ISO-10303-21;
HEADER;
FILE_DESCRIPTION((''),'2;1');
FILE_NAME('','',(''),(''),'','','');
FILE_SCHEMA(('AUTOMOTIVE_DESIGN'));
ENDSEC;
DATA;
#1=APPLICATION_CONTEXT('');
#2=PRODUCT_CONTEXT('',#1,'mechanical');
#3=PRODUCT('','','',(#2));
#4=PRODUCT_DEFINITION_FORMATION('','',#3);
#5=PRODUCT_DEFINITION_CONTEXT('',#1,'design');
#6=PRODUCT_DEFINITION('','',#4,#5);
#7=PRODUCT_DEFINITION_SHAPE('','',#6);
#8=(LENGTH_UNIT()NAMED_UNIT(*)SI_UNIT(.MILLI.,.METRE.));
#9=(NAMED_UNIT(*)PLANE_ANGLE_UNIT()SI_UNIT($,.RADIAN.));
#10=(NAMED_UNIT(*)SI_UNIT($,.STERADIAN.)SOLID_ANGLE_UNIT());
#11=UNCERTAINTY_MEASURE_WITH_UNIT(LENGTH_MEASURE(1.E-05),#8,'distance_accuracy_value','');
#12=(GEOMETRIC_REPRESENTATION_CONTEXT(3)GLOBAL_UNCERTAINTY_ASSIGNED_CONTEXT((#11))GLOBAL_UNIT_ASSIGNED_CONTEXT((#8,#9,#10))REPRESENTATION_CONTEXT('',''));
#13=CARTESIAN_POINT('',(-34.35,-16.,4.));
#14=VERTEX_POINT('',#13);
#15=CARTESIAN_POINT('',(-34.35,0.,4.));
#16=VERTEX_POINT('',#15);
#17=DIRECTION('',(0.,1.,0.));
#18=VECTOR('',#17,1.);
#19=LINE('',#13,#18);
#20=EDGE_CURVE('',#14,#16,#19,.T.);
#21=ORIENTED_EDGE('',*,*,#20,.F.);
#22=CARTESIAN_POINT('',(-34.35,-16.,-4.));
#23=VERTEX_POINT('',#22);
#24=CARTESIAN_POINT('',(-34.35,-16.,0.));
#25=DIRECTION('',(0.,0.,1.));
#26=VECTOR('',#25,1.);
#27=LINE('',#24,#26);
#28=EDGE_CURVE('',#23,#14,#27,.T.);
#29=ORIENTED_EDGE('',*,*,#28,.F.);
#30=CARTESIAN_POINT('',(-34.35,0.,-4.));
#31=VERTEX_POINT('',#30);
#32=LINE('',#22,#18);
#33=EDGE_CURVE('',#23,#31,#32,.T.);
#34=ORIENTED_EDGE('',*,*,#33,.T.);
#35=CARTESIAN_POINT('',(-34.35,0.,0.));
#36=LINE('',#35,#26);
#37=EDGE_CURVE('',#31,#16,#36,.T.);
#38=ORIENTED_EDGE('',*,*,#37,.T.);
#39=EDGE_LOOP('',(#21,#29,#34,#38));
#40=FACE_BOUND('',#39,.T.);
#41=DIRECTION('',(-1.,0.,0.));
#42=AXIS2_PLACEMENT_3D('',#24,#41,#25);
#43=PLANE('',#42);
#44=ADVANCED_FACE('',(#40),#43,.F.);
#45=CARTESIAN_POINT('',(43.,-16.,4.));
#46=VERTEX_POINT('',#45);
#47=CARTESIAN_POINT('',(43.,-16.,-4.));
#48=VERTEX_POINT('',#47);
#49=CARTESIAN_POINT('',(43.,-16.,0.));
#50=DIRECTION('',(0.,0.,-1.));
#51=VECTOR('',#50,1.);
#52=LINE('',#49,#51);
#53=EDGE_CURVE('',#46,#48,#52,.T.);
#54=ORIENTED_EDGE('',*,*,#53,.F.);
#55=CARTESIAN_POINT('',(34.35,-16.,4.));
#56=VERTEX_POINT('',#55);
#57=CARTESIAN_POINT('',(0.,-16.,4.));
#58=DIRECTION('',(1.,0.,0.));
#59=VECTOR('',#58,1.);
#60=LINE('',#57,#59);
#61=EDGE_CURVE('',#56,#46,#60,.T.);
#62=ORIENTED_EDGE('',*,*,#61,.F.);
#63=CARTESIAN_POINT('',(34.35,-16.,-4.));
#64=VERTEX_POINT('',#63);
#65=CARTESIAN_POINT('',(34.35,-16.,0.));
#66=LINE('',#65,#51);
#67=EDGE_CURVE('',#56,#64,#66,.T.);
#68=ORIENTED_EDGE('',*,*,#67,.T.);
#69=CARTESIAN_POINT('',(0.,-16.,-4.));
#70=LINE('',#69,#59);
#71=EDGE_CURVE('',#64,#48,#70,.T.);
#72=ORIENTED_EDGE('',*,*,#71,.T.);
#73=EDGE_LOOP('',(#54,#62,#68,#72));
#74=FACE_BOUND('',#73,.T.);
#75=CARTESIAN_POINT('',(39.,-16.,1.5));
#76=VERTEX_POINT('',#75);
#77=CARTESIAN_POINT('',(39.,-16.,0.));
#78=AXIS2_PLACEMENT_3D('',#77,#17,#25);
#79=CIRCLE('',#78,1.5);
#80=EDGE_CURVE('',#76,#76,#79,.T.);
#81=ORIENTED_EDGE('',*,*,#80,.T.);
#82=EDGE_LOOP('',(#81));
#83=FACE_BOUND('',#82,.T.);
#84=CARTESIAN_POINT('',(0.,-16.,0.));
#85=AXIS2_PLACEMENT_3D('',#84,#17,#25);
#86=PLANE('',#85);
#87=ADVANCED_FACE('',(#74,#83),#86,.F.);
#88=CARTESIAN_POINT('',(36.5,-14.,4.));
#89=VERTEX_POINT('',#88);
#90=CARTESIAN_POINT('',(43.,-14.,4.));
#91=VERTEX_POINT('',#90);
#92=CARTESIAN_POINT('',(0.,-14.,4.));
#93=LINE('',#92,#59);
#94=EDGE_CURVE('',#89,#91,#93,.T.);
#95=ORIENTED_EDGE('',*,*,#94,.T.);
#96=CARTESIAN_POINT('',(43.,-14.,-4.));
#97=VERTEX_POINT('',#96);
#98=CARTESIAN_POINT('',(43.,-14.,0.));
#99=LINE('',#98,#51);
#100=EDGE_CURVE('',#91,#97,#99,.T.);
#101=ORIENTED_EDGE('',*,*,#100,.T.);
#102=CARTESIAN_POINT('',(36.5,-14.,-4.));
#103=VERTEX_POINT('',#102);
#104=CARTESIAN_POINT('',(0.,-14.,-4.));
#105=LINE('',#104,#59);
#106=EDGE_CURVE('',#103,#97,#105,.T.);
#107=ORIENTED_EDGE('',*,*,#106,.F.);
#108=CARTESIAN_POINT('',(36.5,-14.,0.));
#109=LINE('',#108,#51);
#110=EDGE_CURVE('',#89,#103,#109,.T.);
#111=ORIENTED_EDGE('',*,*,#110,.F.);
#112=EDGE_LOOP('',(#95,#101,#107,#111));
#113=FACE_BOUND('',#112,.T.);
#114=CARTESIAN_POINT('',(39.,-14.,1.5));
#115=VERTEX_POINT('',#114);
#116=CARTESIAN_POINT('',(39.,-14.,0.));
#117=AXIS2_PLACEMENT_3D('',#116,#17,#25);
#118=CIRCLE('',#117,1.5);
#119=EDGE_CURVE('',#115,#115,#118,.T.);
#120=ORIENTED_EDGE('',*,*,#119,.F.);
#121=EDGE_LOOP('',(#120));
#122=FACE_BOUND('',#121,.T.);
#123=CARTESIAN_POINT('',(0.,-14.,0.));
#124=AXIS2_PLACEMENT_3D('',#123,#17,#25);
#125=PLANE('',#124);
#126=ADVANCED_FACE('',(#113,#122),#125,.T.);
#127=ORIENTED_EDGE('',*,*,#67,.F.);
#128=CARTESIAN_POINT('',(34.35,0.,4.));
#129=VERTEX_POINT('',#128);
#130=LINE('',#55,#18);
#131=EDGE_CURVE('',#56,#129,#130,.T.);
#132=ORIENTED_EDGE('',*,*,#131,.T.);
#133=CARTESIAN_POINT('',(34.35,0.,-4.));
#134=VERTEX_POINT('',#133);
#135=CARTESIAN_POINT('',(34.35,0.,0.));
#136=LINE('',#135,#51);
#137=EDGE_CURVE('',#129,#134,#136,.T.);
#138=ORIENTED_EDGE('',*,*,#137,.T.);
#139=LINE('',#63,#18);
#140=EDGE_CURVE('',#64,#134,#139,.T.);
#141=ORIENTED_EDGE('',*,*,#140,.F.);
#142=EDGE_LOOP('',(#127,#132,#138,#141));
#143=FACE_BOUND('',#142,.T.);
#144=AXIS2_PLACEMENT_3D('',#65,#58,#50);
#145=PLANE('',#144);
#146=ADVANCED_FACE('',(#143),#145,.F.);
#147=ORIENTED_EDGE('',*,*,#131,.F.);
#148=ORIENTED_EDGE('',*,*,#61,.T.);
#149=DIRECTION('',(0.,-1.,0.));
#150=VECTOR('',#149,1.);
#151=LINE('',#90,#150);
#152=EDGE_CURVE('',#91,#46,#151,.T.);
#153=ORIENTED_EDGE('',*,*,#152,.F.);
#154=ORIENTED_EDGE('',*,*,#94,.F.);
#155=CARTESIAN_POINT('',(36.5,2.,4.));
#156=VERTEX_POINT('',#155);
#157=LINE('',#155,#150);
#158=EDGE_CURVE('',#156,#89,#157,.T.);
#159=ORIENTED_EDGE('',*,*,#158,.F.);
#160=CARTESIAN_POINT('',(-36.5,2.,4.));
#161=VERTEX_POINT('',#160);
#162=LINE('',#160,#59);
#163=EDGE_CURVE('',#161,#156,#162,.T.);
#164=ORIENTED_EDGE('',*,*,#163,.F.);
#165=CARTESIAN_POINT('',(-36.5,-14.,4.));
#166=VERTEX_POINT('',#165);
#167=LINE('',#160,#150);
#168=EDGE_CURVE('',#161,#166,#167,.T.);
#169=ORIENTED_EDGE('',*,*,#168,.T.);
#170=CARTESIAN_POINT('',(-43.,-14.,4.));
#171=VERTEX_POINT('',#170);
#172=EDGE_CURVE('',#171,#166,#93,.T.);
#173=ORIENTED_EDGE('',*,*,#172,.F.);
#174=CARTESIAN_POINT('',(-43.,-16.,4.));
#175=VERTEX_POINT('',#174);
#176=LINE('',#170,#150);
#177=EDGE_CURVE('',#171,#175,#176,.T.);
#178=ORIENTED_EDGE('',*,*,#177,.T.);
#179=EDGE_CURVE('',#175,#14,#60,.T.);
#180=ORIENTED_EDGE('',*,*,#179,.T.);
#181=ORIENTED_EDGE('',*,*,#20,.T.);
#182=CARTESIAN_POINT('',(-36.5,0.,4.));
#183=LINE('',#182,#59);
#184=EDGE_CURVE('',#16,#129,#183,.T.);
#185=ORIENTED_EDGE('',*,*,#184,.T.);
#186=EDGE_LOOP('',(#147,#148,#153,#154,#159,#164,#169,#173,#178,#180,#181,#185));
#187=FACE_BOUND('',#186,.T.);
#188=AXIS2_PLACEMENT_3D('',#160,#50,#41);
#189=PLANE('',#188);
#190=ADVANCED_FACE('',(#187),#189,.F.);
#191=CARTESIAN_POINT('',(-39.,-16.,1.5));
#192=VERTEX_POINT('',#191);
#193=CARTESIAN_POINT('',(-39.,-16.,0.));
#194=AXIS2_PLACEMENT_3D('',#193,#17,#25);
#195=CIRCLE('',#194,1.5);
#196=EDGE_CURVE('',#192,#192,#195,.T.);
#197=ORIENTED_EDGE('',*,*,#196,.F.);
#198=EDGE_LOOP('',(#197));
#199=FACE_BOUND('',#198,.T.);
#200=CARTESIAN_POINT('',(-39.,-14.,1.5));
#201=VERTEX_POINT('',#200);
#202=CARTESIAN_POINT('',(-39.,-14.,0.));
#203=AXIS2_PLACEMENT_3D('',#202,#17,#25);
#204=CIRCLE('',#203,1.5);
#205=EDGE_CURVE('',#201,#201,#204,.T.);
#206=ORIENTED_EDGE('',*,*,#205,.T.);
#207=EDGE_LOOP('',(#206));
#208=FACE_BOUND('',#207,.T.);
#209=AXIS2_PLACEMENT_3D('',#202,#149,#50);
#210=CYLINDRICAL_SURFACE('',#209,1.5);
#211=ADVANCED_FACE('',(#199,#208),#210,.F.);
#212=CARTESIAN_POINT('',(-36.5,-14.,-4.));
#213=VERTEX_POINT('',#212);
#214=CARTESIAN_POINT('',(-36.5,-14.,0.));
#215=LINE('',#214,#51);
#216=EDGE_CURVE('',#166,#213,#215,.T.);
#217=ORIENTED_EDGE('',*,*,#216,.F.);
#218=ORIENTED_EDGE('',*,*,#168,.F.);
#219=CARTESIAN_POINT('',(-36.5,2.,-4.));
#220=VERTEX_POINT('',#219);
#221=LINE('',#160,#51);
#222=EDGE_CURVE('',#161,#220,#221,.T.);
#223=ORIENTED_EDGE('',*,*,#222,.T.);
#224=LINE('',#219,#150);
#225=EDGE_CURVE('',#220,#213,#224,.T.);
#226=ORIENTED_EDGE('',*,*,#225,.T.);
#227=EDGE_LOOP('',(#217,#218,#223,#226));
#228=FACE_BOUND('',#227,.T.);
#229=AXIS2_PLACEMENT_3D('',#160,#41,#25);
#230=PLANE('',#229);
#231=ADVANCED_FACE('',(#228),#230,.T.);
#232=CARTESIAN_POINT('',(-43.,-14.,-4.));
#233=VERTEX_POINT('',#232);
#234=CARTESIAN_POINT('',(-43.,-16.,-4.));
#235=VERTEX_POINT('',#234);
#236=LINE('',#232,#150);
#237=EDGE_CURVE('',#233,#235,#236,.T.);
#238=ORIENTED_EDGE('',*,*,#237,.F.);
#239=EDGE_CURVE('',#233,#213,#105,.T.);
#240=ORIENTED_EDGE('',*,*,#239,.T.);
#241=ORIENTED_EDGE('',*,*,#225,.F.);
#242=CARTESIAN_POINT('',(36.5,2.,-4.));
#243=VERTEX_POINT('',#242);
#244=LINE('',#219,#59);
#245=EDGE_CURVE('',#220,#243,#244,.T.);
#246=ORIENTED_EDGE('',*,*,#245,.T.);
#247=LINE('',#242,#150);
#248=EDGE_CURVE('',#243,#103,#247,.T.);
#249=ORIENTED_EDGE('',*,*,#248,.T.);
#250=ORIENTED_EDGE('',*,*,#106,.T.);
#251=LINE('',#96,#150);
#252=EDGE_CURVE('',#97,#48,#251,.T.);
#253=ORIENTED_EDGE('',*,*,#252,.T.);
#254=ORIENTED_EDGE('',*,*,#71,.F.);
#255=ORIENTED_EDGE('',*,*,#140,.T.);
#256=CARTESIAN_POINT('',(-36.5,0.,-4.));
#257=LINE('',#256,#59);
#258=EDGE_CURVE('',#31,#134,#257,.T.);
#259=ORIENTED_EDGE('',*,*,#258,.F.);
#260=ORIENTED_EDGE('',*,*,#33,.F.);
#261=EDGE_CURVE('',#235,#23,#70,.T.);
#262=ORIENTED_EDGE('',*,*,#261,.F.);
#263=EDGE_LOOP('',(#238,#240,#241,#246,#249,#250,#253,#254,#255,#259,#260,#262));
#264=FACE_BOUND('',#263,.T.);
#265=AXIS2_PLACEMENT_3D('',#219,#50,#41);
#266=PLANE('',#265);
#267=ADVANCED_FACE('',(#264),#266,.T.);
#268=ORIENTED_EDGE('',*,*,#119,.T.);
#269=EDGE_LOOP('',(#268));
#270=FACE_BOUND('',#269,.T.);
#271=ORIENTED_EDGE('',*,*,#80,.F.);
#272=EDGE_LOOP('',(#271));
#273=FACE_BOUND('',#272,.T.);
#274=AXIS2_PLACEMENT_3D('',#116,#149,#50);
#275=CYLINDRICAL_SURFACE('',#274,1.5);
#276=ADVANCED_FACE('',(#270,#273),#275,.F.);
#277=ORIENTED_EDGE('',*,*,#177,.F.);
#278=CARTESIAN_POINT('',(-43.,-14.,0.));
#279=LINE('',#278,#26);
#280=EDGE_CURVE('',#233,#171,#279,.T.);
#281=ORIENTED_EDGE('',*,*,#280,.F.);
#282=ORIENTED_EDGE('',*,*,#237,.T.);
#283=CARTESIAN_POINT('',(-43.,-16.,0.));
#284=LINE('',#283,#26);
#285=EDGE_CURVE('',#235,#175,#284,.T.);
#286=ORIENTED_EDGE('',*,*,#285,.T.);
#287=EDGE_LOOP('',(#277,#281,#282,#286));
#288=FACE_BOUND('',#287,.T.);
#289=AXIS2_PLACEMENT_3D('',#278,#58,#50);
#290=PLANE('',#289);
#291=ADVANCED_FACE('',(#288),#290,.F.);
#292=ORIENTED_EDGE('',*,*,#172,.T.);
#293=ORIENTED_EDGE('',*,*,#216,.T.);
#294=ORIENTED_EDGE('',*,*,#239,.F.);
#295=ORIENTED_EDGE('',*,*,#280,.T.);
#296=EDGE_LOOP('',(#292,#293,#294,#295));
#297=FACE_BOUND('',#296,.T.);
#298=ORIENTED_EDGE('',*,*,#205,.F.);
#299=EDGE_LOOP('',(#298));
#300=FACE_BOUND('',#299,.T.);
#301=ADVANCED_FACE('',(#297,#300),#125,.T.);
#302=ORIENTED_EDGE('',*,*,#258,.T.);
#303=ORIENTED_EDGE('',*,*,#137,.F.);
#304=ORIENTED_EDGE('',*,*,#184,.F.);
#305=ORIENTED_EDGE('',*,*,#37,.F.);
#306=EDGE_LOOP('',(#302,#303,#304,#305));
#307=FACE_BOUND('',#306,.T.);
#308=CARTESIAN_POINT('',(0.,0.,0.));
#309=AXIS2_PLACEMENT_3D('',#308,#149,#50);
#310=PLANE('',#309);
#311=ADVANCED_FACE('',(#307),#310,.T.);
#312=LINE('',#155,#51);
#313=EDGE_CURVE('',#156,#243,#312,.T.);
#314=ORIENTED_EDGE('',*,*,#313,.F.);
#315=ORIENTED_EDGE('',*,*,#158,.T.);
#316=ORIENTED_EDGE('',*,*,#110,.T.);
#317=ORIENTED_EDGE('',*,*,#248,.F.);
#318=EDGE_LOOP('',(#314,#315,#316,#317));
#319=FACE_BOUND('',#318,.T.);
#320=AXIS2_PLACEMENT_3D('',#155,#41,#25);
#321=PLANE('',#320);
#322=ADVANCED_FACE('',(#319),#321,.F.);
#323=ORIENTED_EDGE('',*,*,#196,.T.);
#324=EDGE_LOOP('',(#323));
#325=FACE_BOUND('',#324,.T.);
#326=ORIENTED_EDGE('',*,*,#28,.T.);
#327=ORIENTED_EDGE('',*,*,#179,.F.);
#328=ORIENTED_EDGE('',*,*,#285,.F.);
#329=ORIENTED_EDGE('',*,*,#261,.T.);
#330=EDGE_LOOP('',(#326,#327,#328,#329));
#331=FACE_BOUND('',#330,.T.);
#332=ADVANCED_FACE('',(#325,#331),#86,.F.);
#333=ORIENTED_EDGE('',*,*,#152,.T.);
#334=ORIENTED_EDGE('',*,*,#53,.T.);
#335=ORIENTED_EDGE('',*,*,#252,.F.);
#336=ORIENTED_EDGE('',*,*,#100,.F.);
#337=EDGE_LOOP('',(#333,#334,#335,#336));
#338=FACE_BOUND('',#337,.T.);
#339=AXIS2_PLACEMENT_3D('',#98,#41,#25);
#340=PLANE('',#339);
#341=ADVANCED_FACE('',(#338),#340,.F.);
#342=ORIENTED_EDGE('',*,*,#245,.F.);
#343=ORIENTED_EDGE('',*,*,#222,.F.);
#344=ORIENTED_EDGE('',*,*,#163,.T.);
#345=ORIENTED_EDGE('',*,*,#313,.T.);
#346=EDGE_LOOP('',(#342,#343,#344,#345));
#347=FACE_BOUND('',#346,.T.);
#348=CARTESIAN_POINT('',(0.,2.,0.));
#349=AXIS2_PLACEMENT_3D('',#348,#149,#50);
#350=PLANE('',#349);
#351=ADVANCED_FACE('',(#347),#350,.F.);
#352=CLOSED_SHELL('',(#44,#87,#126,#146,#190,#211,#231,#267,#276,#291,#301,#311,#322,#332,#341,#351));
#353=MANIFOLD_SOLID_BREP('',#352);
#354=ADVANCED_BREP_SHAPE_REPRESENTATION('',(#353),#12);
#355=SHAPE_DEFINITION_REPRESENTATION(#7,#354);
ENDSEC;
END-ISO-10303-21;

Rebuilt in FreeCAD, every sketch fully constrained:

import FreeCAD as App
import Part
import Sketcher

V = App.Vector


def add_polygon(sketch, points):
    """Adds a closed chain of lines whose ends are joined by coincident constraints."""
    first, n = sketch.GeometryCount, len(points)
    for a, b in zip(points, points[1:] + points[:1]):
        sketch.addGeometry(Part.LineSegment(App.Vector(*a, 0), App.Vector(*b, 0)), False)
    for i in range(n):
        sketch.addConstraint(Sketcher.Constraint("Coincident", first + i, 2, first + (i + 1) % n, 1))

doc = App.newDocument("Part")
params = doc.addObject("Spreadsheet::Sheet", "Params")
for row, (alias, value) in enumerate([
    ("sketch1_width", "73 mm"),
    ("sketch1_height", "8 mm"),
    ("pad1_length", "2 mm"),
    ("sketch2_height", "8 mm"),
    ("sketch2_width", "2.15 mm"),
    ("pad2_length", "16 mm"),
    ("sketch3_diameter", "3 mm"),
    ("sketch3_height", "8 mm"),
    ("sketch3_width", "6.5 mm"),
    ("pad3_length", "2 mm"),
], start=1):
    params.set(f"A{row}", alias)
    params.set(f"B{row}", "=" + value)
    params.setAlias(f"B{row}", alias)

body = doc.addObject("PartDesign::Body", "Body")

sketch1 = body.newObject("Sketcher::SketchObject", "Sketch")
sketch1.AttachmentSupport = (doc.getObject("XZ_Plane"), [""])
sketch1.MapMode = "FlatFace"
add_polygon(sketch1, [(-36, -4), (-36, 4), (36, 4), (36, -4)])
sketch1.addConstraint([
    Sketcher.Constraint("Vertical", 0),
    Sketcher.Constraint("Horizontal", 1),
    Sketcher.Constraint("Vertical", 2),
    Sketcher.Constraint("Horizontal", 3),
    Sketcher.Constraint("Symmetric", 0, 2, 2, 2, -1, 1),
    Sketcher.Constraint("DistanceX", 1, 1, 1, 2, 73.0),
    Sketcher.Constraint("DistanceY", 0, 1, 0, 2, 8.0),
])
sketch1.setExpression("Constraints[9]", "Params.sketch1_width")
sketch1.setExpression("Constraints[10]", "Params.sketch1_height")
pad1 = body.newObject("PartDesign::Pad", "Pad")
pad1.Profile = sketch1
pad1.setExpression("Length", "Params.pad1_length")
pad1.Reversed = True

sketch2 = body.newObject("Sketcher::SketchObject", "Sketch001")
sketch2.AttachmentSupport = (doc.getObject("XZ_Plane"), [""])
sketch2.MapMode = "FlatFace"
add_polygon(sketch2, [(-36.5, -4), (-36.5, 4), (-34.4, 4), (-34.4, -4)])
add_polygon(sketch2, [(34.4, -4), (34.4, 4), (36.5, 4), (36.5, -4)])
sketch2.addConstraint([
    Sketcher.Constraint("Vertical", 0),
    Sketcher.Constraint("Horizontal", 1),
    Sketcher.Constraint("Vertical", 2),
    Sketcher.Constraint("Horizontal", 3),
    Sketcher.Constraint("Vertical", 4),
    Sketcher.Constraint("Horizontal", 5),
    Sketcher.Constraint("Vertical", 6),
    Sketcher.Constraint("Horizontal", 7),
    Sketcher.Constraint("Symmetric", 2, 2, 4, 2, -1, 1),
    Sketcher.Constraint("Symmetric", 0, 2, 6, 2, -1, 1),
    Sketcher.Constraint("Horizontal", 1, 2, 4, 2),
    Sketcher.Constraint("DistanceY", 0, 1, 0, 2, 8.0),
    Sketcher.Constraint("DistanceX", 0, 2, 5, 2, 73.0),
    Sketcher.Constraint("DistanceX", 1, 1, 1, 2, 2.15),
])
sketch2.setExpression("Constraints[19]", "Params.sketch2_height")
sketch2.setExpression("Constraints[21]", "Params.sketch2_width")
pad2 = body.newObject("PartDesign::Pad", "Pad001")
pad2.Profile = sketch2
pad2.setExpression("Length", "Params.pad2_length")

sketch3 = body.newObject("Sketcher::SketchObject", "Sketch002")
sketch3.AttachmentSupport = (doc.getObject("XZ_Plane"), [""])
sketch3.MapMode = "FlatFace"
sketch3.AttachmentOffset = App.Placement(V(0, 0, 16), App.Rotation())
add_polygon(sketch3, [(-43, -4), (-43, 4), (-36.5, 4), (-36.5, -4)])
sketch3.addGeometry(Part.Circle(V(-39, 0, 0), V(0, 0, 1), 1.5), False)
add_polygon(sketch3, [(36.5, -4), (36.5, 4), (43, 4), (43, -4)])
sketch3.addGeometry(Part.Circle(V(39, 0, 0), V(0, 0, 1), 1.5), False)
sketch3.addConstraint([
    Sketcher.Constraint("Vertical", 0),
    Sketcher.Constraint("Horizontal", 1),
    Sketcher.Constraint("Vertical", 2),
    Sketcher.Constraint("Horizontal", 3),
    Sketcher.Constraint("Vertical", 5),
    Sketcher.Constraint("Horizontal", 6),
    Sketcher.Constraint("Vertical", 7),
    Sketcher.Constraint("Horizontal", 8),
    Sketcher.Constraint("Equal", 4, 9),
    Sketcher.Constraint("Symmetric", 4, 3, 9, 3, -1, 1),
    Sketcher.Constraint("Symmetric", 2, 2, 5, 2, -1, 1),
    Sketcher.Constraint("Symmetric", 0, 2, 7, 2, -1, 1),
    Sketcher.Constraint("PointOnObject", 4, 3, -1),
    Sketcher.Constraint("Horizontal", 1, 2, 5, 2),
    Sketcher.Constraint("Diameter", 4, 3.0),
    Sketcher.Constraint("DistanceY", 0, 1, 0, 2, 8.0),
    Sketcher.Constraint("DistanceX", 1, 1, 1, 2, 6.5),
    Sketcher.Constraint("DistanceX", 4, 3, -1, 1, 39.0),
    Sketcher.Constraint("DistanceX", 0, 2, -1, 1, 43.0),
])
sketch3.setExpression("Constraints[22]", "Params.sketch3_diameter")
sketch3.setExpression("Constraints[23]", "Params.sketch3_height")
sketch3.setExpression("Constraints[24]", "Params.sketch3_width")
pad3 = body.newObject("PartDesign::Pad", "Pad002")
pad3.Profile = sketch3
pad3.setExpression("Length", "Params.pad3_length")
pad3.Reversed = True

doc.recompute()
